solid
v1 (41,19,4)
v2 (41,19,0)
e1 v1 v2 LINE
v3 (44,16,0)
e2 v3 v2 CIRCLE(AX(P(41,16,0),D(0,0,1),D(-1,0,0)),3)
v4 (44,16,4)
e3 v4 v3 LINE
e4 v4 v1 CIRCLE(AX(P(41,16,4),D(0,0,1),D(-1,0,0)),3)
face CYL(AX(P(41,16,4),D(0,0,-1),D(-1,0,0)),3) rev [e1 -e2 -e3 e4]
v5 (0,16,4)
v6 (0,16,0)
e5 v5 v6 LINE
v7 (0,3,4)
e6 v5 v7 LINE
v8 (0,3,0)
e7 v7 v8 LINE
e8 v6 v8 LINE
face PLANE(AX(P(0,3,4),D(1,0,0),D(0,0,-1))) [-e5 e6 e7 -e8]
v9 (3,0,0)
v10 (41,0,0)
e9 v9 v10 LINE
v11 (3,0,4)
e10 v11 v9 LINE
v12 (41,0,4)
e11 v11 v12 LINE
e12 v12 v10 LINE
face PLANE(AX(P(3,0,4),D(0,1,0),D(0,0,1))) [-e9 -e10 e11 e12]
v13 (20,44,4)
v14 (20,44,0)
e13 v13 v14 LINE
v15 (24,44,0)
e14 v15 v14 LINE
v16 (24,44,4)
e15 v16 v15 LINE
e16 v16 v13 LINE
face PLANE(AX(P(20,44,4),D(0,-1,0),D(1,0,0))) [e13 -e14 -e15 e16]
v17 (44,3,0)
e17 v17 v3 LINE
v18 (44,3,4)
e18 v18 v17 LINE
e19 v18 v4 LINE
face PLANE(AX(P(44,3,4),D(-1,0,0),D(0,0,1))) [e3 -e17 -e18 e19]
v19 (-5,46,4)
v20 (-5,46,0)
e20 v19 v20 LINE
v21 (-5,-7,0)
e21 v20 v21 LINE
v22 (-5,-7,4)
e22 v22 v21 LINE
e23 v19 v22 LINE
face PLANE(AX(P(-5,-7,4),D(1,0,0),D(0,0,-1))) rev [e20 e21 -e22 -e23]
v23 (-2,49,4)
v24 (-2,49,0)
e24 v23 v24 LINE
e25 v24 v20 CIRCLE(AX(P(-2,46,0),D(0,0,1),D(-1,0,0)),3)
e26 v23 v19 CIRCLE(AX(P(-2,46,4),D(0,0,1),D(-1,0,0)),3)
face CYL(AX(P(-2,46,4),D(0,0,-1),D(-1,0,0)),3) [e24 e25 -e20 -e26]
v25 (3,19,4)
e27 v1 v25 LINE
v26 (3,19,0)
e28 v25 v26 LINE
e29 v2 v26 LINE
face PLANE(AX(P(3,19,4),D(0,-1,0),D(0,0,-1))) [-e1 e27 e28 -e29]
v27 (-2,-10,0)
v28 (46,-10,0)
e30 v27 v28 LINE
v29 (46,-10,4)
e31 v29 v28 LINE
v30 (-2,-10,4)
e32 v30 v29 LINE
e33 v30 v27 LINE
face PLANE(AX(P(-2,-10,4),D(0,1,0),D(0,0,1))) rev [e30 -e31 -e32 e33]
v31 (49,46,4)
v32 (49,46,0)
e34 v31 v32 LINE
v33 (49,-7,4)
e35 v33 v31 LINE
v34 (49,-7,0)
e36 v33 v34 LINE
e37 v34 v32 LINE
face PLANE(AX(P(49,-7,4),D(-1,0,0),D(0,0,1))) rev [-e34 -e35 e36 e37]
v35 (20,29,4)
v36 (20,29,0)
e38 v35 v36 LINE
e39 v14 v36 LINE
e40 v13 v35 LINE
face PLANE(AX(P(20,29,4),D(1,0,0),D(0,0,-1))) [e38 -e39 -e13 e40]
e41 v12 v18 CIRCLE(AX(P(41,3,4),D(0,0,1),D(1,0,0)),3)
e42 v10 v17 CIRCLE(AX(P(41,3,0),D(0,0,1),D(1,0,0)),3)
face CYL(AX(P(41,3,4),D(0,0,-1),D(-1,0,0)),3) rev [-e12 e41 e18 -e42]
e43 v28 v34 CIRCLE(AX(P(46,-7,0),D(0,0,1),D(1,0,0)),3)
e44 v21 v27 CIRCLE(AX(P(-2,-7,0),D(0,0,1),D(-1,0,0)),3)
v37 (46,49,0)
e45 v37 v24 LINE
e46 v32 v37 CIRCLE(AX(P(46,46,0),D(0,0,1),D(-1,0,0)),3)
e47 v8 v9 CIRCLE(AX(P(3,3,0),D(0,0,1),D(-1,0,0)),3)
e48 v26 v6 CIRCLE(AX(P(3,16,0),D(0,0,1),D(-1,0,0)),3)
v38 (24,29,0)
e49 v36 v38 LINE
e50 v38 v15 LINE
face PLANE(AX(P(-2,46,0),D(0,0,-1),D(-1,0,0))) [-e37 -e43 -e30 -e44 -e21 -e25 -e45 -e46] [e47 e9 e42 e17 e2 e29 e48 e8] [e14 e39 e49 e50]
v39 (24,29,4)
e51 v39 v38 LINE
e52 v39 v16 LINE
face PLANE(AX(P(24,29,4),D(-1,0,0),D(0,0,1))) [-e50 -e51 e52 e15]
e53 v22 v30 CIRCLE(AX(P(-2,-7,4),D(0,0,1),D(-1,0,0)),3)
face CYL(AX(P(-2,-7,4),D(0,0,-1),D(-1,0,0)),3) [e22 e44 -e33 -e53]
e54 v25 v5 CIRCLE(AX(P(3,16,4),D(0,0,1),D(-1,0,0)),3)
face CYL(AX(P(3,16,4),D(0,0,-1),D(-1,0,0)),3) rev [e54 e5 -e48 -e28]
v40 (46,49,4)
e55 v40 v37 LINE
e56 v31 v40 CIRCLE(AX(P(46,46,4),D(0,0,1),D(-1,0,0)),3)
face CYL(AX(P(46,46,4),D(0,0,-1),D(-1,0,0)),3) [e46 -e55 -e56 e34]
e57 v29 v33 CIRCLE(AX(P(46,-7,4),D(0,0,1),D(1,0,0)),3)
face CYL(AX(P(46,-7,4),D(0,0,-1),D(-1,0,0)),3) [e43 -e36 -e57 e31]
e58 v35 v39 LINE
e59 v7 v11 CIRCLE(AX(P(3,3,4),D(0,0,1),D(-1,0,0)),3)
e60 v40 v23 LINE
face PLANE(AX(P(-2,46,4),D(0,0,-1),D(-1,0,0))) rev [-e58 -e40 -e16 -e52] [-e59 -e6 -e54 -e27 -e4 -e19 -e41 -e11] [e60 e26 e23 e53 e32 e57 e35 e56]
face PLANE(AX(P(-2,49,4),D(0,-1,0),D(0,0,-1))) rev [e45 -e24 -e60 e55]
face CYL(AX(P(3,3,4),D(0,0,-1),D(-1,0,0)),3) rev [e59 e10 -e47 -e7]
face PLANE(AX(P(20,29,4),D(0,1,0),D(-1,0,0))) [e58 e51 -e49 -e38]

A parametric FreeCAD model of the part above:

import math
import FreeCAD as App
import Part
import Sketcher

V = App.Vector
Q = App.Units.Quantity


def add_polygon(sketch, points):
    """Adds a closed chain of lines whose ends are joined by coincident constraints."""
    first, n = sketch.GeometryCount, len(points)
    for a, b in zip(points, points[1:] + points[:1]):
        sketch.addGeometry(Part.LineSegment(App.Vector(*a, 0), App.Vector(*b, 0)), False)
    for i in range(n):
        sketch.addConstraint(Sketcher.Constraint("Coincident", first + i, 2, first + (i + 1) % n, 1))

doc = App.newDocument("Part")
body = doc.addObject("PartDesign::Body", "Body")

# Sketch on XY plane
sketch1 = body.newObject("Sketcher::SketchObject", "Sketch")
sketch1.AttachmentSupport = (doc.getObject("XY_Plane"), [""])
sketch1.MapMode = "FlatFace"
sketch1.addGeometry(Part.LineSegment(V(-2, -10, 0), V(46, -10, 0)), False)  # 0
sketch1.addGeometry(Part.ArcOfCircle(Part.Circle(V(46, -7, 0), V(0, 0, 1), 3), math.radians(-90), math.radians(0)), False)  # 1
sketch1.addGeometry(Part.LineSegment(V(49, -7, 0), V(49, 46, 0)), False)  # 2
sketch1.addGeometry(Part.ArcOfCircle(Part.Circle(V(46, 46, 0), V(0, 0, 1), 3), math.radians(0), math.radians(90)), False)  # 3
sketch1.addGeometry(Part.LineSegment(V(46, 49, 0), V(-2, 49, 0)), False)  # 4
sketch1.addGeometry(Part.ArcOfCircle(Part.Circle(V(-2, 46, 0), V(0, 0, 1), 3), math.radians(90), math.radians(180)), False)  # 5
sketch1.addGeometry(Part.LineSegment(V(-5, 46, 0), V(-5, -7, 0)), False)  # 6
sketch1.addGeometry(Part.ArcOfCircle(Part.Circle(V(-2, -7, 0), V(0, 0, 1), 3), math.radians(180), math.radians(270)), False)  # 7
sketch1.addGeometry(Part.LineSegment(V(41, 0, 0), V(3, 0, 0)), False)  # 8
sketch1.addGeometry(Part.ArcOfCircle(Part.Circle(V(3, 3, 0), V(0, 0, 1), 3), math.radians(180), math.radians(270)), False)  # 9
sketch1.addGeometry(Part.LineSegment(V(0, 3, 0), V(0, 16, 0)), False)  # 10
sketch1.addGeometry(Part.ArcOfCircle(Part.Circle(V(3, 16, 0), V(0, 0, 1), 3), math.radians(90), math.radians(180)), False)  # 11
sketch1.addGeometry(Part.LineSegment(V(3, 19, 0), V(41, 19, 0)), False)  # 12
sketch1.addGeometry(Part.ArcOfCircle(Part.Circle(V(41, 16, 0), V(0, 0, 1), 3), math.radians(0), math.radians(90)), False)  # 13
sketch1.addGeometry(Part.LineSegment(V(44, 16, 0), V(44, 3, 0)), False)  # 14
sketch1.addGeometry(Part.ArcOfCircle(Part.Circle(V(41, 3, 0), V(0, 0, 1), 3), math.radians(-90), math.radians(0)), False)  # 15
add_polygon(sketch1, [(24, 29), (20, 29), (20, 44), (24, 44)])  # lines 16-19
sketch1.addConstraint(Sketcher.Constraint("Tangent", 0, 2, 1, 1))
sketch1.addConstraint(Sketcher.Constraint("Tangent", 1, 2, 2, 1))
sketch1.addConstraint(Sketcher.Constraint("Tangent", 2, 2, 3, 1))
sketch1.addConstraint(Sketcher.Constraint("Tangent", 3, 2, 4, 1))
sketch1.addConstraint(Sketcher.Constraint("Tangent", 4, 2, 5, 1))
sketch1.addConstraint(Sketcher.Constraint("Tangent", 5, 2, 6, 1))
sketch1.addConstraint(Sketcher.Constraint("Tangent", 6, 2, 7, 1))
sketch1.addConstraint(Sketcher.Constraint("Tangent", 7, 2, 0, 1))
sketch1.addConstraint(Sketcher.Constraint("Tangent", 8, 2, 9, 2))
sketch1.addConstraint(Sketcher.Constraint("Tangent", 9, 1, 10, 1))
sketch1.addConstraint(Sketcher.Constraint("Tangent", 10, 2, 11, 2))
sketch1.addConstraint(Sketcher.Constraint("Tangent", 11, 1, 12, 1))
sketch1.addConstraint(Sketcher.Constraint("Tangent", 12, 2, 13, 2))
sketch1.addConstraint(Sketcher.Constraint("Tangent", 13, 1, 14, 1))
sketch1.addConstraint(Sketcher.Constraint("Tangent", 14, 2, 15, 2))
sketch1.addConstraint(Sketcher.Constraint("Tangent", 15, 1, 8, 1))
sketch1.addConstraint(Sketcher.Constraint("Horizontal", 0))
sketch1.addConstraint(Sketcher.Constraint("Vertical", 2))
sketch1.addConstraint(Sketcher.Constraint("Horizontal", 4))
sketch1.addConstraint(Sketcher.Constraint("Vertical", 6))
sketch1.addConstraint(Sketcher.Constraint("Horizontal", 8))
sketch1.addConstraint(Sketcher.Constraint("Vertical", 10))
sketch1.addConstraint(Sketcher.Constraint("Horizontal", 12))
sketch1.addConstraint(Sketcher.Constraint("Vertical", 14))
sketch1.addConstraint(Sketcher.Constraint("Horizontal", 16))
sketch1.addConstraint(Sketcher.Constraint("Vertical", 17))
sketch1.addConstraint(Sketcher.Constraint("Horizontal", 18))
sketch1.addConstraint(Sketcher.Constraint("Vertical", 19))
sketch1.addConstraint(Sketcher.Constraint("Equal", 1, 3))
sketch1.addConstraint(Sketcher.Constraint("Equal", 3, 5))
sketch1.addConstraint(Sketcher.Constraint("Equal", 5, 7))
sketch1.addConstraint(Sketcher.Constraint("Equal", 7, 9))
sketch1.addConstraint(Sketcher.Constraint("Equal", 9, 11))
sketch1.addConstraint(Sketcher.Constraint("Equal", 11, 13))
sketch1.addConstraint(Sketcher.Constraint("Equal", 13, 15))
sketch1.addConstraint(Sketcher.Constraint("PointOnObject", 8, 2, -1))
sketch1.addConstraint(Sketcher.Constraint("PointOnObject", 9, 1, -2))
sketch1.addConstraint(Sketcher.Constraint("Radius", 1, Q("3 mm")))
sketch1.addConstraint(Sketcher.Constraint("DistanceX", 0, 1, 0, 2, Q("48 mm")))
sketch1.addConstraint(Sketcher.Constraint("DistanceX", 8, 2, 8, 1, Q("38 mm")))
sketch1.addConstraint(Sketcher.Constraint("DistanceX", 16, 2, 16, 1, Q("4 mm")))
sketch1.addConstraint(Sketcher.Constraint("DistanceY", 2, 1, 2, 2, Q("53 mm")))
sketch1.addConstraint(Sketcher.Constraint("DistanceY", 10, 1, 10, 2, Q("13 mm")))
sketch1.addConstraint(Sketcher.Constraint("DistanceY", 17, 1, 17, 2, Q("15 mm")))
sketch1.addConstraint(Sketcher.Constraint("DistanceX", -1, 1, 1, 3, Q("46 mm")))
sketch1.addConstraint(Sketcher.Constraint("DistanceY", 1, 3, -1, 1, Q("7 mm")))
sketch1.addConstraint(Sketcher.Constraint("DistanceX", -1, 1, 16, 2, Q("20 mm")))
sketch1.addConstraint(Sketcher.Constraint("DistanceY", -1, 1, 16, 2, Q("29 mm")))
pad1 = body.newObject("PartDesign::Pad", "Pad")
pad1.Profile = sketch1
pad1.Length = 4

doc.recompute()
